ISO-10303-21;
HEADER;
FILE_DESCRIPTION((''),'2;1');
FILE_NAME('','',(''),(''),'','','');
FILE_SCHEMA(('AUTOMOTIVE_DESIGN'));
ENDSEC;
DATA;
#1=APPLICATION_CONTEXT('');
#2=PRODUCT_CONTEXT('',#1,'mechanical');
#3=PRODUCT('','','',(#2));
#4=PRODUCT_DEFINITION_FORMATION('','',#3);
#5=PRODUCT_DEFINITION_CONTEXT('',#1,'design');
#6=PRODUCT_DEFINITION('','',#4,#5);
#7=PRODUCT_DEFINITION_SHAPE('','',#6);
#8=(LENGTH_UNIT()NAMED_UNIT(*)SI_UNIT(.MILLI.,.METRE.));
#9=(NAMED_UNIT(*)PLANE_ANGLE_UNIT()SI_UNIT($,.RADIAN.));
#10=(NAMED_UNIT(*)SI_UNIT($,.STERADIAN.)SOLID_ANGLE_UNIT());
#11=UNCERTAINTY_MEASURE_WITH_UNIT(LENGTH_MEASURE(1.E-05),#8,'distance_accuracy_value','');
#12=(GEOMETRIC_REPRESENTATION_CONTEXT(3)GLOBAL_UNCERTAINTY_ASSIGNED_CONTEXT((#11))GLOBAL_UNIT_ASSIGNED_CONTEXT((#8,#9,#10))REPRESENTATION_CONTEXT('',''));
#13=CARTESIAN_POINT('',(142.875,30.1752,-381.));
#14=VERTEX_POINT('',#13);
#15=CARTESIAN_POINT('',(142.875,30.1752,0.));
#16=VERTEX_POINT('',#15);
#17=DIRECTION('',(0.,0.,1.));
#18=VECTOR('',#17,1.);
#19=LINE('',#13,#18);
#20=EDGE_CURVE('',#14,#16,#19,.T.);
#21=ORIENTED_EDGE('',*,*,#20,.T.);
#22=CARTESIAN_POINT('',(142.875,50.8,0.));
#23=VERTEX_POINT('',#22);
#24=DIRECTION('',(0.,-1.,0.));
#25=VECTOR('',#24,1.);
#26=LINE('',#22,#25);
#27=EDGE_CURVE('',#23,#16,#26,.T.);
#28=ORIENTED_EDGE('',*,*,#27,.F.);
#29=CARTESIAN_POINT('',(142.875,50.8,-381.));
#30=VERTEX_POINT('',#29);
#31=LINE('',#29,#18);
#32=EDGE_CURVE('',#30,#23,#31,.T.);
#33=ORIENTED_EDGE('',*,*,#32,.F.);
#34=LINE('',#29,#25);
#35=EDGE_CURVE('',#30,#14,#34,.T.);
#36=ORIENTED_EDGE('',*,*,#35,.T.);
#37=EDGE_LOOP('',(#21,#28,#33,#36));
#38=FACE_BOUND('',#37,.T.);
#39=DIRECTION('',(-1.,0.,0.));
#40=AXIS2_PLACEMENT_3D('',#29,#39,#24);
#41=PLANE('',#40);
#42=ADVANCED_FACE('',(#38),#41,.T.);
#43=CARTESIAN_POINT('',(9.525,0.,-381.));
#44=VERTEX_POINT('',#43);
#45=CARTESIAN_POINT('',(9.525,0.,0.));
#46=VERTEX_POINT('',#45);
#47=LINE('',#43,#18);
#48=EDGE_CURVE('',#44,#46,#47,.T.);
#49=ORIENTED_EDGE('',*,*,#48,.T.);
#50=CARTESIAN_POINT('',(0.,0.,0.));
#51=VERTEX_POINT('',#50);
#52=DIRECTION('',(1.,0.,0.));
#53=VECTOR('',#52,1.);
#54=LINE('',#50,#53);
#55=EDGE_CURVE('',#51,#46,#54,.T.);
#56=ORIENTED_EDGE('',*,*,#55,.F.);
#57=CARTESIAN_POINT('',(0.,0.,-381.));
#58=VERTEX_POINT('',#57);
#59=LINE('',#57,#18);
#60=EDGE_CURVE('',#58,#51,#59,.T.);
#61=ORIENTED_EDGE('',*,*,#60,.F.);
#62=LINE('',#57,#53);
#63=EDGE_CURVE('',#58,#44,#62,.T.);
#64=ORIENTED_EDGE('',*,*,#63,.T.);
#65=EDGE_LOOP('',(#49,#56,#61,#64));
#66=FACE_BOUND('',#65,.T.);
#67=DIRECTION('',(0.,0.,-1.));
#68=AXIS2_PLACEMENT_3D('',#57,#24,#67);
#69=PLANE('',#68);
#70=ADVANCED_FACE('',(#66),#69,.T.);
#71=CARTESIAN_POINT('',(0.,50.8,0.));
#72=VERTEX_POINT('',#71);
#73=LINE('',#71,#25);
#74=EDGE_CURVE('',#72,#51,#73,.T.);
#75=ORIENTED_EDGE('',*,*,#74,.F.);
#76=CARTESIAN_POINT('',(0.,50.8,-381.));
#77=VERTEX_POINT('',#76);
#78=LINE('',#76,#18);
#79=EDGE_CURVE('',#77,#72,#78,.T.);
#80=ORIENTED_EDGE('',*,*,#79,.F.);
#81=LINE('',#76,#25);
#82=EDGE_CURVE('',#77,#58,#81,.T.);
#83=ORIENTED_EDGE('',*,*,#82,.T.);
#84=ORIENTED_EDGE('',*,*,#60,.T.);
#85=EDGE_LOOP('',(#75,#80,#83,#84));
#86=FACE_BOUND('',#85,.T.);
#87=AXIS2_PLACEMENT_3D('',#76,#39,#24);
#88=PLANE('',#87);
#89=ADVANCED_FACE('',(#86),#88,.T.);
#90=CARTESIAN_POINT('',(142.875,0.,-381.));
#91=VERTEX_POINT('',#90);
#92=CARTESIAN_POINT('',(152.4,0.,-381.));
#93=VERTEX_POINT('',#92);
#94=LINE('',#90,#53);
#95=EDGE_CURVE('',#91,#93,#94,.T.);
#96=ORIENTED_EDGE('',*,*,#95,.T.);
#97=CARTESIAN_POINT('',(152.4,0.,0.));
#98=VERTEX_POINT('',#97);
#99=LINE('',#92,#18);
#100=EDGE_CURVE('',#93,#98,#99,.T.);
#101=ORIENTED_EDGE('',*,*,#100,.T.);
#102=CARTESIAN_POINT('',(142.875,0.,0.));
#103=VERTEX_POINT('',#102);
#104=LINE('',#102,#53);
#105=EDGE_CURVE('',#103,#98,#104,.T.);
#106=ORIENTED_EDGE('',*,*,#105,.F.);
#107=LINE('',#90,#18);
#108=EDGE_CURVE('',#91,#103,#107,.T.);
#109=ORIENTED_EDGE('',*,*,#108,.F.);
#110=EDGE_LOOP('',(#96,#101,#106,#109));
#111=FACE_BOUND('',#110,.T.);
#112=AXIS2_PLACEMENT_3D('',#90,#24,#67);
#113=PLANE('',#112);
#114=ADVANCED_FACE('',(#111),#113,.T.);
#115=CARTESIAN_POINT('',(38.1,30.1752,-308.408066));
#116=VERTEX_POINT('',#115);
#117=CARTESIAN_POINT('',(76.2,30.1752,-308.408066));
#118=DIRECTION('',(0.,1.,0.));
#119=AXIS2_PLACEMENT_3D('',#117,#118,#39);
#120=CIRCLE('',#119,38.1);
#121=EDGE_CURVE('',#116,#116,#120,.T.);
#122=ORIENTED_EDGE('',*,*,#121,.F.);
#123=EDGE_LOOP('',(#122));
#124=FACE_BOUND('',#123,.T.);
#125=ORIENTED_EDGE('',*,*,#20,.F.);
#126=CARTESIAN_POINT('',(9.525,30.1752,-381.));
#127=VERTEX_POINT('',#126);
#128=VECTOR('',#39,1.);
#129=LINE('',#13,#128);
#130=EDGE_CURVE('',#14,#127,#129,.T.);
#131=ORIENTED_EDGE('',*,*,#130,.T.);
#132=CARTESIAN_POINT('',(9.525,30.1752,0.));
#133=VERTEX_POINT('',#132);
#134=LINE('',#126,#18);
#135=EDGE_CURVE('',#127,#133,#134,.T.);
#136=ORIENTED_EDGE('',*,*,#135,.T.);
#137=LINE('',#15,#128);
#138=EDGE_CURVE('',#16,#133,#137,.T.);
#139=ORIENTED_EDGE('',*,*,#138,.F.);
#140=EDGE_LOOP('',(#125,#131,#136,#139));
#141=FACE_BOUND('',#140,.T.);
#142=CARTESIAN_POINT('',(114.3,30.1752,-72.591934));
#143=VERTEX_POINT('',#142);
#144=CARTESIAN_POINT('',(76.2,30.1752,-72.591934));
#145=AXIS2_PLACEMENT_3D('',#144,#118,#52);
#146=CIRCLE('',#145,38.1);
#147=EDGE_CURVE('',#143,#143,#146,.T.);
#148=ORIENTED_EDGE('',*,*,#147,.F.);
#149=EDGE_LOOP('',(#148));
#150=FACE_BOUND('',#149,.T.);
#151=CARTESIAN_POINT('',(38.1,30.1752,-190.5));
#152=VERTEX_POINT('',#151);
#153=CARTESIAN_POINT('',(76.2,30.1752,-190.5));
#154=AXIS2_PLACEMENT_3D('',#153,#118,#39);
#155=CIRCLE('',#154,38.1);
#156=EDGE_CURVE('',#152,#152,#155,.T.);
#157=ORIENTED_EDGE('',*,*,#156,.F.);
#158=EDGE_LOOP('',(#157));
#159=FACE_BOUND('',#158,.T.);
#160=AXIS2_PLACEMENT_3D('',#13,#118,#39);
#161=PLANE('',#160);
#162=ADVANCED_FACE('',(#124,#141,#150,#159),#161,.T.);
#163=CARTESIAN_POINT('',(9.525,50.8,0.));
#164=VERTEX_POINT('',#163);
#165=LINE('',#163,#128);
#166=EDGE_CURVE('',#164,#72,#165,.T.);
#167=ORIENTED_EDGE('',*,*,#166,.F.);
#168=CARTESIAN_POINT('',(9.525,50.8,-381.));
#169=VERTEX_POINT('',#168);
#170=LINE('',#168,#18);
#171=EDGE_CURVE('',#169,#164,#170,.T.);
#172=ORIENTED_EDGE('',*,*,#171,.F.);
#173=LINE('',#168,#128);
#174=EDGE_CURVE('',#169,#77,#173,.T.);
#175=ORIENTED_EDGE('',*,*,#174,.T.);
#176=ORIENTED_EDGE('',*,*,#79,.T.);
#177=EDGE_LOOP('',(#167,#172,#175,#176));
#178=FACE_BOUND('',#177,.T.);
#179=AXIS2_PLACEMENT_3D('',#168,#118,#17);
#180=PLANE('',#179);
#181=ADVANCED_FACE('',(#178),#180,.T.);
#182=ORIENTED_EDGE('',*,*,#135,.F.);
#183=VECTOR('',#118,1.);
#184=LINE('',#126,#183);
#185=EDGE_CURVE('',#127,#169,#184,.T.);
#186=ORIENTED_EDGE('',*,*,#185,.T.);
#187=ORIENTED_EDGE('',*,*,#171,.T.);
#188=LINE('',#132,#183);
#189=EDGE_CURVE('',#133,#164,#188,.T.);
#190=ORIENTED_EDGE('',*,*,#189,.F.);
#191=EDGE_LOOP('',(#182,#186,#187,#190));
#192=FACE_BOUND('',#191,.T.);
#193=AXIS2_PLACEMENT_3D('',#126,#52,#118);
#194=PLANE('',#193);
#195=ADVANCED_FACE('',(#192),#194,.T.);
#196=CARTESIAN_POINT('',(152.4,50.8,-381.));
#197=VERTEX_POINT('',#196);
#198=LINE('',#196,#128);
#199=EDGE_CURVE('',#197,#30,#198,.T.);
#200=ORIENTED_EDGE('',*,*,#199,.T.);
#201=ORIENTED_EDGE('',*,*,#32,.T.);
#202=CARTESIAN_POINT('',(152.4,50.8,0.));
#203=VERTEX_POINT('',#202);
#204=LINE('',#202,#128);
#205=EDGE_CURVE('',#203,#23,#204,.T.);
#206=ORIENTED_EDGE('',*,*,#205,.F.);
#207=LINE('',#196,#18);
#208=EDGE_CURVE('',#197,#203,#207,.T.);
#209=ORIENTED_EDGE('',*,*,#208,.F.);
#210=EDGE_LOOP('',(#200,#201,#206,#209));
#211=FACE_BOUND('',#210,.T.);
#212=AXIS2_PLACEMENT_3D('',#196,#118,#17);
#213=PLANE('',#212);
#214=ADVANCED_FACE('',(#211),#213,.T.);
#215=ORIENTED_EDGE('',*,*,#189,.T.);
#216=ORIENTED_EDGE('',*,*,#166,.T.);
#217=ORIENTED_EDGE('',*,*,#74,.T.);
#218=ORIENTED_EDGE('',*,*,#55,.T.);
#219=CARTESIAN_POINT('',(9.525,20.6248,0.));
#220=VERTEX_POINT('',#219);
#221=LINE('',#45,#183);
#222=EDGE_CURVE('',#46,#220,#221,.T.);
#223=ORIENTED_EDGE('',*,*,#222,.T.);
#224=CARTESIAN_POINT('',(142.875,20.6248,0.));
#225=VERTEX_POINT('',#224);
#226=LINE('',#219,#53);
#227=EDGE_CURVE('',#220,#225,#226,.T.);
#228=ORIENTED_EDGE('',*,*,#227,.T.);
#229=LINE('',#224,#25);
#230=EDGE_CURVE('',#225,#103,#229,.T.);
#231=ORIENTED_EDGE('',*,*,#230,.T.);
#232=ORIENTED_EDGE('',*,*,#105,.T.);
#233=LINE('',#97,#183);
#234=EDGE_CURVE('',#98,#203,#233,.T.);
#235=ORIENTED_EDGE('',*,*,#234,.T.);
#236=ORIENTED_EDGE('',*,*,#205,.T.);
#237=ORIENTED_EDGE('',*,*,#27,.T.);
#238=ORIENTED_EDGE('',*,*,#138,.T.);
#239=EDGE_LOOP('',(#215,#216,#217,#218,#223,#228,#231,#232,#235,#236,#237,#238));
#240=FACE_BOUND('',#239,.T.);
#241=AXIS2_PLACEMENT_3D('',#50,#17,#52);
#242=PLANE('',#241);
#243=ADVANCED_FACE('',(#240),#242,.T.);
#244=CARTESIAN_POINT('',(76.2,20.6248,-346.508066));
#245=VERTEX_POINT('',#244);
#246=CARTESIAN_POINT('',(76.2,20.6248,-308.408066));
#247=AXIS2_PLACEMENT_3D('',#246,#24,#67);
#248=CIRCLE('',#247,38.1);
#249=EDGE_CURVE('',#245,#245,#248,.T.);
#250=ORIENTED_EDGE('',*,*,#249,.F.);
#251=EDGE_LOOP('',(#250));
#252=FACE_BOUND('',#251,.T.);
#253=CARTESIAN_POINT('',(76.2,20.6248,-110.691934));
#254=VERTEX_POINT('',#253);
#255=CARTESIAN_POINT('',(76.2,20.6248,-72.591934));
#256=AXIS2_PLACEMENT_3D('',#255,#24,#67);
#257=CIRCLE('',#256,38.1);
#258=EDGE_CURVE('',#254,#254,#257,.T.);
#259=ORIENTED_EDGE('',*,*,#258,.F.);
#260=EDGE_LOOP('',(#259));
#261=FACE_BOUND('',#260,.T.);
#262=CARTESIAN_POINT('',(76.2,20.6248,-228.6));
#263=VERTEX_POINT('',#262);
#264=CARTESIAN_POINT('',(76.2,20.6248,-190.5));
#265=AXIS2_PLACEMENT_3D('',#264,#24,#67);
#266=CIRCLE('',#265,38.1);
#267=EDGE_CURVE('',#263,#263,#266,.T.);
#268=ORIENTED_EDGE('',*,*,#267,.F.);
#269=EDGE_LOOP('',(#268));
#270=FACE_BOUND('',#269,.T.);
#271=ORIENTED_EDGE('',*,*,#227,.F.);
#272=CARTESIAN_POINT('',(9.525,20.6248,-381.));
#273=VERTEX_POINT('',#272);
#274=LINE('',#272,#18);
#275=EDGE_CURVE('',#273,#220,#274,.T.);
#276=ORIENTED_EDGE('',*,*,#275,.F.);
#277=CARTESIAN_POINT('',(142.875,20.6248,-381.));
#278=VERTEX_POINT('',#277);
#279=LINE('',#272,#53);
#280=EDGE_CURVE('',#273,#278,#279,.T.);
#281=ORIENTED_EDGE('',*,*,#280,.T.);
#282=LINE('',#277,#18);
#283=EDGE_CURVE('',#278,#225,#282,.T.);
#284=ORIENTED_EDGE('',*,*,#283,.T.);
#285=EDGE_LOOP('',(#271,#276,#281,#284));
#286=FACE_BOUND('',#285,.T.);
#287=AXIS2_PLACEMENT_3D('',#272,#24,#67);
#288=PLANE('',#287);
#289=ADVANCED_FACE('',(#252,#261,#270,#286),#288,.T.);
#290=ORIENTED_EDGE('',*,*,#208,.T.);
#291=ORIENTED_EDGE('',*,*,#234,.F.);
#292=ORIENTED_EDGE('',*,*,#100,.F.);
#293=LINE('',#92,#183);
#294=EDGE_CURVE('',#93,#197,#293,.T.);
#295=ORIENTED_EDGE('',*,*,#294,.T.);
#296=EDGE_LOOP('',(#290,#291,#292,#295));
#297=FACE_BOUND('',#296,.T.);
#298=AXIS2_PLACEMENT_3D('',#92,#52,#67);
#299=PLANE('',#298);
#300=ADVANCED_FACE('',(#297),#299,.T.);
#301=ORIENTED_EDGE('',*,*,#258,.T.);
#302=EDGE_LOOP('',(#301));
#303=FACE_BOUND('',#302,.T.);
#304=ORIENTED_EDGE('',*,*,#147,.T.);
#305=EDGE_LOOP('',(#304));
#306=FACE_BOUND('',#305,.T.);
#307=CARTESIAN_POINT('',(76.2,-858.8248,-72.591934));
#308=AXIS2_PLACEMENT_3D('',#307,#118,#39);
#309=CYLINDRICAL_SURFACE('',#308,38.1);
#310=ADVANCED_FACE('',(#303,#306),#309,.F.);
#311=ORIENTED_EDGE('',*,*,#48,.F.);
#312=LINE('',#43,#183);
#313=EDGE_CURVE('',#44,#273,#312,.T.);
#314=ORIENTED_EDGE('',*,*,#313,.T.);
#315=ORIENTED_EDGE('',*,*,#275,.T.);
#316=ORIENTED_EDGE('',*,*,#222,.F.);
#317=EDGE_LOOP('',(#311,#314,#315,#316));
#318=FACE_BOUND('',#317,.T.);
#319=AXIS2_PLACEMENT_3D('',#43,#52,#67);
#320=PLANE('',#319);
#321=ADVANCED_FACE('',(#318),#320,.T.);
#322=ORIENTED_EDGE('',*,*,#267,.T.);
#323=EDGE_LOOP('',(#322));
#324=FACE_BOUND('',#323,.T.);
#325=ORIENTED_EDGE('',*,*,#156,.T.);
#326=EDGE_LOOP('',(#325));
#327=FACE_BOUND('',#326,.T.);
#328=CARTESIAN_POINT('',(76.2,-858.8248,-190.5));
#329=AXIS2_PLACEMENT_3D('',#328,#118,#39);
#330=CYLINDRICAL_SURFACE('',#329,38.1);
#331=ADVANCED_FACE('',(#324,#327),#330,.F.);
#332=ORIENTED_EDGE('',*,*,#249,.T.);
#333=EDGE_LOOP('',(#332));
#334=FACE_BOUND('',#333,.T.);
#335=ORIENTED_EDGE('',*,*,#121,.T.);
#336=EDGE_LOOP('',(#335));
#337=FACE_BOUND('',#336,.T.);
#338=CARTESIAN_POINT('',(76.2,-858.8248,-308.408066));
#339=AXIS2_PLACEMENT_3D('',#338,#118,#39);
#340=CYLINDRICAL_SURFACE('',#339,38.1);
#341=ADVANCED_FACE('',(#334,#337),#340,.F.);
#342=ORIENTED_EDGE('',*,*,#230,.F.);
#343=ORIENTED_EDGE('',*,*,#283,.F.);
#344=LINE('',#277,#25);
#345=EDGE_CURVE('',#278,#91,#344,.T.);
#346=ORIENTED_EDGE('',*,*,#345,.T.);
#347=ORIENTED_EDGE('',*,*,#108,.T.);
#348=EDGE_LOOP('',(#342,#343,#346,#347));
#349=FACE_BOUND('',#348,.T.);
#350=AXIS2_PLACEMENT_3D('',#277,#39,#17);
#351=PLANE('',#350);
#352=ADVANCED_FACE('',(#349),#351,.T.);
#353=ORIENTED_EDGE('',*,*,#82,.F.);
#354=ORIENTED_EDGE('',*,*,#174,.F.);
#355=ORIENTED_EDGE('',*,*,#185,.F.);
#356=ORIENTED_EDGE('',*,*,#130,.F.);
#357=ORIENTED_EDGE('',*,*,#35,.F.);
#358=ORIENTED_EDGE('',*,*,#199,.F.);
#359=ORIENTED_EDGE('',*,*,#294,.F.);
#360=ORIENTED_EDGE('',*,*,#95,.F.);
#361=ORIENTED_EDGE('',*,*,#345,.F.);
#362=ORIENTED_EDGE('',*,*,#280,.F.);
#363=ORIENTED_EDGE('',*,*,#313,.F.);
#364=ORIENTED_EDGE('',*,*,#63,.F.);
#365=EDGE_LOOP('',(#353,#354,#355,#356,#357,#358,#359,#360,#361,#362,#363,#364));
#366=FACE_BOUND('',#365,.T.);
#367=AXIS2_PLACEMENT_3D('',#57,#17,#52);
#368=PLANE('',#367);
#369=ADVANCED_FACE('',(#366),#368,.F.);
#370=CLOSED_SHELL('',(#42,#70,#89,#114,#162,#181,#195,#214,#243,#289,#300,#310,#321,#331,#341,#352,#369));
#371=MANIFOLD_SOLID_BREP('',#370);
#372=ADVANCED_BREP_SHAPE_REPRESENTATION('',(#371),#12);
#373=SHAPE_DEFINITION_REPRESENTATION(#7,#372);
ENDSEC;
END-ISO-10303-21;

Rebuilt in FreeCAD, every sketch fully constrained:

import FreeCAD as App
import Part
import Sketcher

V = App.Vector
Q = App.Units.Quantity


def add_polygon(sketch, points):
    """Adds a closed chain of lines whose ends are joined by coincident constraints."""
    first, n = sketch.GeometryCount, len(points)
    for a, b in zip(points, points[1:] + points[:1]):
        sketch.addGeometry(Part.LineSegment(App.Vector(*a, 0), App.Vector(*b, 0)), False)
    for i in range(n):
        sketch.addConstraint(Sketcher.Constraint("Coincident", first + i, 2, first + (i + 1) % n, 1))

doc = App.newDocument("Part")
body = doc.addObject("PartDesign::Body", "Body")

# Sketch on XY plane
sketch1 = body.newObject("Sketcher::SketchObject", "Sketch")
sketch1.AttachmentSupport = (doc.getObject("XY_Plane"), [""])
sketch1.MapMode = "FlatFace"
add_polygon(sketch1, [(0, 0), (9.525, 0), (9.525, 20.6248), (142.875, 20.6248), (142.875, 0), (152.4, 0), (152.4, 50.8), (142.875, 50.8), (142.875, 30.1752), (9.525, 30.1752), (9.525, 50.8), (0, 50.8)])  # lines 0-11
sketch1.addConstraint([
    Sketcher.Constraint("Horizontal", 0),
    Sketcher.Constraint("Vertical", 1),
    Sketcher.Constraint("Horizontal", 2),
    Sketcher.Constraint("Vertical", 3),
    Sketcher.Constraint("Horizontal", 4),
    Sketcher.Constraint("Vertical", 5),
    Sketcher.Constraint("Horizontal", 6),
    Sketcher.Constraint("Vertical", 7),
    Sketcher.Constraint("Horizontal", 8),
    Sketcher.Constraint("Vertical", 9),
    Sketcher.Constraint("Horizontal", 10),
    Sketcher.Constraint("Vertical", 11),
    Sketcher.Constraint("Coincident", 11, 2, -1, 1),
    Sketcher.Constraint("PointOnObject", 3, 2, -1),
    Sketcher.Constraint("Horizontal", 6, 2, 9, 2),
    Sketcher.Constraint("Vertical", 3, 2, 6, 2),
    Sketcher.Constraint("Vertical", 1, 2, 8, 2),
    Sketcher.Constraint("Equal", 0, 4),
    Sketcher.Constraint("Equal", 3, 7),
    Sketcher.Constraint("DistanceY", 5, 1, 5, 2, Q("2 in")),
    Sketcher.Constraint("DistanceX", -1, 1, 4, 2, Q("6 in")),
    Sketcher.Constraint("DistanceX", 2, 1, 2, 2, Q("5.25 in")),
    Sketcher.Constraint("DistanceY", 1, 1, 1, 2, Q("0.812 in")),
])
pad1 = body.newObject("PartDesign::Pad", "Pad")
pad1.Profile = sketch1
pad1.Length = Q("15 in")
pad1.Reversed = True

# Sketch on XZ plane
sketch2 = body.newObject("Sketcher::SketchObject", "Sketch001")
sketch2.AttachmentSupport = (doc.getObject("XZ_Plane"), [""])
sketch2.MapMode = "FlatFace"
sketch2.AttachmentOffset = App.Placement(V(0, 0, -1.188 * 25.4), App.Rotation())
sketch2.addGeometry([
    Part.Circle(V(76.2, -308.408066, 0), V(0, 0, 1), 38.1),
    Part.Circle(V(76.2, -190.5, 0), V(0, 0, 1), 38.1),
    Part.Circle(V(76.2, -72.591934, 0), V(0, 0, 1), 38.1),
], False)
sketch2.addConstraint([
    Sketcher.Constraint("Equal", 0, 1),
    Sketcher.Constraint("Equal", 1, 2),
    Sketcher.Constraint("Vertical", 0, 3, 1, 3),
    Sketcher.Constraint("Vertical", 1, 3, 2, 3),
    Sketcher.Constraint("Diameter", 0, Q("3 in")),
    Sketcher.Constraint("DistanceX", -1, 1, 0, 3, Q("3 in")),
    Sketcher.Constraint("DistanceY", 1, 3, -1, 1, Q("7.5 in")),
    Sketcher.Constraint("DistanceY", 0, 3, -1, 1, Q("308.408066 mm")),
    Sketcher.Constraint("DistanceY", 2, 3, -1, 1, Q("72.591934 mm")),
])
pocket1 = body.newObject("PartDesign::Pocket", "Pocket")
pocket1.Profile = sketch2
pocket1.Length = Q("35 in")
pocket1.Reversed = True

doc.recompute()
